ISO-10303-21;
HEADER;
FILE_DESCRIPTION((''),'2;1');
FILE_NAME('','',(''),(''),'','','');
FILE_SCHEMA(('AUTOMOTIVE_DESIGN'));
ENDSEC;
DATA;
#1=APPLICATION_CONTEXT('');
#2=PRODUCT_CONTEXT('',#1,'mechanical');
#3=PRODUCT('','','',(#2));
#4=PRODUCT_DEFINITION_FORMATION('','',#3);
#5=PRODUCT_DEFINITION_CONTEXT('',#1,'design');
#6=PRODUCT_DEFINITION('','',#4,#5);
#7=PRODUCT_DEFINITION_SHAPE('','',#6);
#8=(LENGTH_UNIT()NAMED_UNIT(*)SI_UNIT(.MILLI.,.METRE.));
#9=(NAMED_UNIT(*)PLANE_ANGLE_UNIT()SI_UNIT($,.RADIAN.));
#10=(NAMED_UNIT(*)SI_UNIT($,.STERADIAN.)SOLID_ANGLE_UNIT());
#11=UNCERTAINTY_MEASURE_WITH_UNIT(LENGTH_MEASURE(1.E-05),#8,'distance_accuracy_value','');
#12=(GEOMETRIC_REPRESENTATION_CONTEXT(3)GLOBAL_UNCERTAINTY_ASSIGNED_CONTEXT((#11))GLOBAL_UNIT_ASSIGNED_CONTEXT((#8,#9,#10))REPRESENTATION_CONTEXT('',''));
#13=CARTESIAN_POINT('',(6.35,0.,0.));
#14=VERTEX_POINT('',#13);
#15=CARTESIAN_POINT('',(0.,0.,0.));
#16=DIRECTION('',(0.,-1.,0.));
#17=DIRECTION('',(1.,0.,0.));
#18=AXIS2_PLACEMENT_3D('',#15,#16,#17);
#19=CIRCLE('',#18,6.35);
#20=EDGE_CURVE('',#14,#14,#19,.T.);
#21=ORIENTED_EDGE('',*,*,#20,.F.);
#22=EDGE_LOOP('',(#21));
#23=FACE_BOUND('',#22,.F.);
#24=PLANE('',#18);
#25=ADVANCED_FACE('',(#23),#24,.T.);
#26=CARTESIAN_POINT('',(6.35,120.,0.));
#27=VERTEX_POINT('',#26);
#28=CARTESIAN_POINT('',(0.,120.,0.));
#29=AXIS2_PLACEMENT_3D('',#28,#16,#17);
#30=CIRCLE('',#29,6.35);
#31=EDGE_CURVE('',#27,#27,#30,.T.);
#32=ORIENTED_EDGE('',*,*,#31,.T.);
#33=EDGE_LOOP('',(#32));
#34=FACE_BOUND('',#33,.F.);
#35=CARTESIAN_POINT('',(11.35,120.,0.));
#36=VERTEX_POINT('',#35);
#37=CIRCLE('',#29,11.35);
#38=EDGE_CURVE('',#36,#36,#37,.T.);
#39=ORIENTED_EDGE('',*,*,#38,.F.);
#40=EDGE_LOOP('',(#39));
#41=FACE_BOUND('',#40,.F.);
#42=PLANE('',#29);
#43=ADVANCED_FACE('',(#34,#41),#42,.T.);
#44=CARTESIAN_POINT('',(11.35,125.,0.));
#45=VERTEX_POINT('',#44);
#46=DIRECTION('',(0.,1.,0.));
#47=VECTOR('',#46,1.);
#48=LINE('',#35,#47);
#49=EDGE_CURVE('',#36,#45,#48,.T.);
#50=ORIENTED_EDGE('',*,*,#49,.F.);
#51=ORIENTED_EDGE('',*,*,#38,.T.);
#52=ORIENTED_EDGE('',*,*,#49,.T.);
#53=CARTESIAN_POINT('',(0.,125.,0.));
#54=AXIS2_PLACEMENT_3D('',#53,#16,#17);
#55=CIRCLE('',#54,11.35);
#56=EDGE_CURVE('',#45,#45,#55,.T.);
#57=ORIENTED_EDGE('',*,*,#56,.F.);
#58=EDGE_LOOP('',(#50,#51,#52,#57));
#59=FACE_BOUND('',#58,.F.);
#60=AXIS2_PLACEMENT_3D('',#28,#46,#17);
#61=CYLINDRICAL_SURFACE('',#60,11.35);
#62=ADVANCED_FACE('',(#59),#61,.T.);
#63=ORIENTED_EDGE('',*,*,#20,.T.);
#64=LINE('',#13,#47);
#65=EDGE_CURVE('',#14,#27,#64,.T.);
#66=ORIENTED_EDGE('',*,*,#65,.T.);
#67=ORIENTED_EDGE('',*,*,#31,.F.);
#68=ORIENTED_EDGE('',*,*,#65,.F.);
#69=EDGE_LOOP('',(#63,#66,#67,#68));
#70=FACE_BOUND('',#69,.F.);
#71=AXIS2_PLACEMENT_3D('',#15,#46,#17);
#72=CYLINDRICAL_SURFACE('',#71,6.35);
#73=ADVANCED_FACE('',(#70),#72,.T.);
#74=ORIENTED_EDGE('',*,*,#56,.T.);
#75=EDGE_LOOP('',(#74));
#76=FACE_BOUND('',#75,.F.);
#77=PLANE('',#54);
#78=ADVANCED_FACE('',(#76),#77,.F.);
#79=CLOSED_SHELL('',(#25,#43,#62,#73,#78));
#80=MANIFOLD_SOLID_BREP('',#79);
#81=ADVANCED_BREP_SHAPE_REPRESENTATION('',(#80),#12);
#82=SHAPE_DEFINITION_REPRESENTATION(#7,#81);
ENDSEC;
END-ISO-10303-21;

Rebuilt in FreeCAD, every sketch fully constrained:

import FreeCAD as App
import Part
import Sketcher

V = App.Vector

doc = App.newDocument("Part")
body = doc.addObject("PartDesign::Body", "Body")

# Sketch on XY plane
sketch1 = doc.addObject("Sketcher::SketchObject", "Sketch")
body.addObject(sketch1)
sketch1.AttachmentSupport = (doc.XY_Plane, [""])
sketch1.MapMode = "FlatFace"
sketch1.addGeometry(Part.LineSegment(V(0, 125, 0), V(0, 0, 0)), False)
sketch1.addGeometry(Part.LineSegment(V(0, 0, 0), V(6, 0, 0)), False)
sketch1.addGeometry(Part.LineSegment(V(6, 0, 0), V(6, 120, 0)), False)
sketch1.addGeometry(Part.LineSegment(V(6, 120, 0), V(11, 120, 0)), False)
sketch1.addGeometry(Part.LineSegment(V(11, 120, 0), V(11, 125, 0)), False)
sketch1.addGeometry(Part.LineSegment(V(11, 125, 0), V(0, 125, 0)), False)
sketch1.addConstraint(Sketcher.Constraint("Coincident", 0, 2, 1, 1))
sketch1.addConstraint(Sketcher.Constraint("Coincident", 1, 2, 2, 1))
sketch1.addConstraint(Sketcher.Constraint("Coincident", 2, 2, 3, 1))
sketch1.addConstraint(Sketcher.Constraint("Coincident", 3, 2, 4, 1))
sketch1.addConstraint(Sketcher.Constraint("Coincident", 4, 2, 5, 1))
sketch1.addConstraint(Sketcher.Constraint("Coincident", 5, 2, 0, 1))
sketch1.addConstraint(Sketcher.Constraint("Vertical", 0))
sketch1.addConstraint(Sketcher.Constraint("Horizontal", 1))
sketch1.addConstraint(Sketcher.Constraint("Vertical", 2))
sketch1.addConstraint(Sketcher.Constraint("Horizontal", 3))
sketch1.addConstraint(Sketcher.Constraint("Vertical", 4))
sketch1.addConstraint(Sketcher.Constraint("Horizontal", 5))
sketch1.addConstraint(Sketcher.Constraint("Coincident", 0, 2, -1, 1))
sketch1.addConstraint(Sketcher.Constraint("Equal", 3, 4))
sketch1.addConstraint(Sketcher.Constraint("DistanceX", 3, 1, 3, 2, 5.0))
sketch1.addConstraint(Sketcher.Constraint("DistanceY", 2, 1, 2, 2, 120.0))
sketch1.addConstraint(Sketcher.Constraint("DistanceX", 1, 1, 1, 2, 6.35))
revolution = doc.addObject("PartDesign::Revolution", "Revolution")
body.addObject(revolution)
revolution.Profile = sketch1
revolution.ReferenceAxis = (sketch1, ["V_Axis"])
revolution.Angle = 360

doc.recompute()
